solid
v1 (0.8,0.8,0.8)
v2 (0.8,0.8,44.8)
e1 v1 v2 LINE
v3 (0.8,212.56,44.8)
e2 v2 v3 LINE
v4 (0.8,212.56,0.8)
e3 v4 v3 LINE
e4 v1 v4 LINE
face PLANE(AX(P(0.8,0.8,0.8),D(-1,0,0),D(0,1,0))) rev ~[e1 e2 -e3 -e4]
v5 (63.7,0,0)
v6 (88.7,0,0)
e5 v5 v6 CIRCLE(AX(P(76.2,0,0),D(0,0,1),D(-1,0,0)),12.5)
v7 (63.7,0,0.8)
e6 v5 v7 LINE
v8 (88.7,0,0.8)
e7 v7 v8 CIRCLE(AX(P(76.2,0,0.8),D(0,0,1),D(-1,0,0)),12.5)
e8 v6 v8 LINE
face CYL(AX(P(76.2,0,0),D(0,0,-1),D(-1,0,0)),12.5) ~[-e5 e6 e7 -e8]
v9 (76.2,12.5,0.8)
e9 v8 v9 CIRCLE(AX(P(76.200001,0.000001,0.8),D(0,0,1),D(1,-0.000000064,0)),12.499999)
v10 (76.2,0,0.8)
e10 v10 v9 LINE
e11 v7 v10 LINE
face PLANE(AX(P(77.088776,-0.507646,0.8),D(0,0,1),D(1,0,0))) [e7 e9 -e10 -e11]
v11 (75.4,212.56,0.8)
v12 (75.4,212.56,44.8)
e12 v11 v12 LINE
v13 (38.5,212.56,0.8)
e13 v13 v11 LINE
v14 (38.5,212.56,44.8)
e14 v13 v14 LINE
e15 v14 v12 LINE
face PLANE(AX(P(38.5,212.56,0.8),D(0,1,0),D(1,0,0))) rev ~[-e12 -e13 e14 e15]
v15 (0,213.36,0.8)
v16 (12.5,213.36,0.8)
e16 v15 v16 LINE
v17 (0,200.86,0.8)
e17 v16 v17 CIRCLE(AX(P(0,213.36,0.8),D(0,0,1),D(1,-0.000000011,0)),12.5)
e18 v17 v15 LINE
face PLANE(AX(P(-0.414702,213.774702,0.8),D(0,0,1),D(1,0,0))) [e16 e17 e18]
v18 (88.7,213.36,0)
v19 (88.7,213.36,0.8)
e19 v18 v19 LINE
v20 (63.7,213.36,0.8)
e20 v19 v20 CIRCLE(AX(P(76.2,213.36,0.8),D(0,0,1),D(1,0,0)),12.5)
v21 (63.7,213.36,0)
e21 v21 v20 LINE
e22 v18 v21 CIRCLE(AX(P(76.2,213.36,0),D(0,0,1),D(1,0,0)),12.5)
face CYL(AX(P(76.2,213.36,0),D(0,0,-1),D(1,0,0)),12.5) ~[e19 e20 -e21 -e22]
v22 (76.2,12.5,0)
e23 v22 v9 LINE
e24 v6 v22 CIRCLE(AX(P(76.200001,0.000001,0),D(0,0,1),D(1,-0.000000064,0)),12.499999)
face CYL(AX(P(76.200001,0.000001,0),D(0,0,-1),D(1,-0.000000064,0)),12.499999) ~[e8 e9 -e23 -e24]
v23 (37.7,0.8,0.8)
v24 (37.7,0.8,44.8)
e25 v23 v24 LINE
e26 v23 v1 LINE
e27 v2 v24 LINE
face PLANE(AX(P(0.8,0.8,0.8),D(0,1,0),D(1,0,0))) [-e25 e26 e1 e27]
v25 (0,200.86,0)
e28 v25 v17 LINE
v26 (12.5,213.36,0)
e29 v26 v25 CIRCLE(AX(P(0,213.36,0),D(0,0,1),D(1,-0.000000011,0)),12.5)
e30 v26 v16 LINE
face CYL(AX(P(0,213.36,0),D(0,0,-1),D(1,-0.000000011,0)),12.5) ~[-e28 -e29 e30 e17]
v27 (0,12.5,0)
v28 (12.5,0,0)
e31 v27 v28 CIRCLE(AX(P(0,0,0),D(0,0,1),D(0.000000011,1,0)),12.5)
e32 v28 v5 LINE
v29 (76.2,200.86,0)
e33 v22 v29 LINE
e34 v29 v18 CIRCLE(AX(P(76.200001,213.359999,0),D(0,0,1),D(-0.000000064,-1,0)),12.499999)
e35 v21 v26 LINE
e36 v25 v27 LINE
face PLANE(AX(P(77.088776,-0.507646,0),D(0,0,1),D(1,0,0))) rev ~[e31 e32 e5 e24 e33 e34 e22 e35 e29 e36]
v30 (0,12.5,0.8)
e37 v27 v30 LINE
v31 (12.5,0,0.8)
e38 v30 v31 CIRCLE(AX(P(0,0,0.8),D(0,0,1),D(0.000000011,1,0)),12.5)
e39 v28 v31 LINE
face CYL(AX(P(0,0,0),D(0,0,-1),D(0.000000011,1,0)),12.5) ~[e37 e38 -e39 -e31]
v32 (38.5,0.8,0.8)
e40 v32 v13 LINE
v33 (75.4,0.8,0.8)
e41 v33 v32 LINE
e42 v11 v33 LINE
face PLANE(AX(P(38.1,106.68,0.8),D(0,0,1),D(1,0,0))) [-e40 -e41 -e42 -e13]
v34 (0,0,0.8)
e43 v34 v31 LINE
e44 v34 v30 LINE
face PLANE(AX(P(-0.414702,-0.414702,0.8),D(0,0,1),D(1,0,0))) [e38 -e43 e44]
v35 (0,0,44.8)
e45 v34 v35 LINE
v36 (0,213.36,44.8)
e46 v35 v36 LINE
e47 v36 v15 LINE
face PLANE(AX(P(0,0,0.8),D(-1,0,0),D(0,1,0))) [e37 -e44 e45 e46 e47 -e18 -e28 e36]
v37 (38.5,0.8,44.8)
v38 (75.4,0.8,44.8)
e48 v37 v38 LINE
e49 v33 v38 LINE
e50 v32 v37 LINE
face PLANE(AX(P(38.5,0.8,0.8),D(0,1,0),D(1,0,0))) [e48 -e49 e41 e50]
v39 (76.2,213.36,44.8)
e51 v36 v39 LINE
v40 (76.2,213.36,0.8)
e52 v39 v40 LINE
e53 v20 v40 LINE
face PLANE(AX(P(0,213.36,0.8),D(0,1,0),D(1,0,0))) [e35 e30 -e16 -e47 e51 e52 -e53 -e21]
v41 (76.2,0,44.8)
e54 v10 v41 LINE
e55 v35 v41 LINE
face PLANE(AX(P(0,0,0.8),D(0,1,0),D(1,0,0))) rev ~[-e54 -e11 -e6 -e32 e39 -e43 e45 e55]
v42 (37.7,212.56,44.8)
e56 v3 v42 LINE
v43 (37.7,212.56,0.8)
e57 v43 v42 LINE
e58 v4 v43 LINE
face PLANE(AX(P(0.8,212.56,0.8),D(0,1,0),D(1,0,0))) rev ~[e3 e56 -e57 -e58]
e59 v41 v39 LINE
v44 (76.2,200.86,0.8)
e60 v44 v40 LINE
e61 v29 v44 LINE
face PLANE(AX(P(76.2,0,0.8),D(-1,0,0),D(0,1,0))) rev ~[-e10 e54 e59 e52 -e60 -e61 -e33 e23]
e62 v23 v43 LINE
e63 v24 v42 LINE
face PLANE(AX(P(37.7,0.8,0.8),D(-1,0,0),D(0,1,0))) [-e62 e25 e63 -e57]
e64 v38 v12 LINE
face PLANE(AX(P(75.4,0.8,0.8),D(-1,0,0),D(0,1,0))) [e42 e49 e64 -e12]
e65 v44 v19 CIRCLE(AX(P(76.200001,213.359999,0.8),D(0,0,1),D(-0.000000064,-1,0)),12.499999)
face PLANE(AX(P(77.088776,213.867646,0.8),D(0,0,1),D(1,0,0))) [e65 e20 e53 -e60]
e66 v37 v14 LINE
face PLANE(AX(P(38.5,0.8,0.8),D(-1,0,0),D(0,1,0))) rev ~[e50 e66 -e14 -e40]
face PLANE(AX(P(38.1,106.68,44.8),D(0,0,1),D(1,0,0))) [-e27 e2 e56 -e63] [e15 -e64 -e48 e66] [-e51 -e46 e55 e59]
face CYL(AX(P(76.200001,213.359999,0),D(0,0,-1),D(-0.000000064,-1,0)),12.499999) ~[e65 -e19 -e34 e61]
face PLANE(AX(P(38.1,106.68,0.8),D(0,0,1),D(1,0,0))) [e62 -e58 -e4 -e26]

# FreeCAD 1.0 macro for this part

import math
import FreeCAD as App
import Part
import Sketcher
from FreeCAD import Vector

doc = App.newDocument("Part")
params = doc.addObject("Spreadsheet::Sheet", "Params")
for row, (alias, value) in enumerate([
    ("sketch1_radius", "12.499999 mm"),
    ("sketch1_width", "76.2 mm"),
    ("sketch1_width2", "63.7 mm"),
    ("sketch1_height", "200.86 mm"),
    ("pad1_length", "0.8 mm"),
    ("sketch2_width", "76.2 mm"),
    ("sketch2_width2", "36.9 mm"),
    ("sketch2_height", "213.36 mm"),
    ("sketch2_height2", "211.76 mm"),
    ("pad2_length", "44 mm"),
    ("sketch3_radius", "12.5 mm"),
    ("pad3_length", "0.8 mm"),
], start=1):
    params.set(f"A{row}", alias)
    params.set(f"B{row}", "=" + value)
    params.setAlias(f"B{row}", alias)

body = doc.addObject("PartDesign::Body", "Body")

# Sketch on XY plane
sketch1 = body.newObject("Sketcher::SketchObject", "Sketch")
sketch1.AttachmentSupport = (doc.getObject("XY_Plane"), [""])
sketch1.MapMode = "FlatFace"
sketch1.addGeometry([
    Part.ArcOfCircle(Part.Circle(Vector(76.199999, 0.000001, 0), Vector(0, 0, 1), 12.499999), math.radians(89.999996), math.radians(180.000004)),  # 0
    Part.LineSegment(Vector(76.2, 12.5, 0), Vector(76.2, 213.36, 0)),  # 1
    Part.LineSegment(Vector(76.2, 213.36, 0), Vector(0, 213.36, 0)),  # 2
    Part.LineSegment(Vector(0, 213.36, 0), Vector(0, 0, 0)),  # 3
    Part.LineSegment(Vector(0, 0, 0), Vector(63.7, 0, 0)),  # 4
], False)
sketch1.addConstraint([
    Sketcher.Constraint("Coincident", 0, 1, 1, 1),
    Sketcher.Constraint("Coincident", 1, 2, 2, 1),
    Sketcher.Constraint("Coincident", 2, 2, 3, 1),
    Sketcher.Constraint("Coincident", 3, 2, 4, 1),
    Sketcher.Constraint("Coincident", 4, 2, 0, 2),
    Sketcher.Constraint("Vertical", 1),
    Sketcher.Constraint("Horizontal", 2),
    Sketcher.Constraint("Vertical", 3),
    Sketcher.Constraint("Horizontal", 4),
    Sketcher.Constraint("Coincident", 3, 2, -1, 1),
    Sketcher.Constraint("PointOnObject", 0, 3, -1),
    Sketcher.Constraint("Radius", 0, 12.499999),
    Sketcher.Constraint("DistanceX", 2, 2, 2, 1, 76.2),
    Sketcher.Constraint("DistanceX", 4, 1, 4, 2, 63.7),
    Sketcher.Constraint("DistanceY", 1, 1, 1, 2, 200.86),
])
sketch1.setExpression("Constraints[11]", "Params.sketch1_radius")
sketch1.setExpression("Constraints[12]", "Params.sketch1_width")
sketch1.setExpression("Constraints[13]", "Params.sketch1_width2")
sketch1.setExpression("Constraints[14]", "Params.sketch1_height")
pad1 = body.newObject("PartDesign::Pad", "Pad")
pad1.Profile = sketch1
pad1.setExpression("Length", "Params.pad1_length")

# Sketch on XY plane
sketch2 = body.newObject("Sketcher::SketchObject", "Sketch001")
sketch2.AttachmentSupport = (doc.getObject("XY_Plane"), [""])
sketch2.MapMode = "FlatFace"
sketch2.AttachmentOffset = App.Placement(Vector(0, 0, 0.8), App.Rotation())
sketch2.addGeometry([
    Part.LineSegment(Vector(0, 213.36, 0), Vector(0, 0, 0)),  # 0
    Part.LineSegment(Vector(0, 0, 0), Vector(76.2, 0, 0)),  # 1
    Part.LineSegment(Vector(76.2, 0, 0), Vector(76.2, 213.36, 0)),  # 2
    Part.LineSegment(Vector(76.2, 213.36, 0), Vector(0, 213.36, 0)),  # 3
    Part.LineSegment(Vector(37.7, 0.8, 0), Vector(0.8, 0.8, 0)),  # 4
    Part.LineSegment(Vector(0.8, 0.8, 0), Vector(0.8, 212.56, 0)),  # 5
    Part.LineSegment(Vector(0.8, 212.56, 0), Vector(37.7, 212.56, 0)),  # 6
    Part.LineSegment(Vector(37.7, 212.56, 0), Vector(37.7, 0.8, 0)),  # 7
    Part.LineSegment(Vector(75.4, 0.8, 0), Vector(38.5, 0.8, 0)),  # 8
    Part.LineSegment(Vector(38.5, 0.8, 0), Vector(38.5, 212.56, 0)),  # 9
    Part.LineSegment(Vector(38.5, 212.56, 0), Vector(75.4, 212.56, 0)),  # 10
    Part.LineSegment(Vector(75.4, 212.56, 0), Vector(75.4, 0.8, 0)),  # 11
], False)
sketch2.addConstraint([
    Sketcher.Constraint("Coincident", 0, 2, 1, 1),
    Sketcher.Constraint("Coincident", 1, 2, 2, 1),
    Sketcher.Constraint("Coincident", 2, 2, 3, 1),
    Sketcher.Constraint("Coincident", 3, 2, 0, 1),
    Sketcher.Constraint("Coincident", 4, 2, 5, 1),
    Sketcher.Constraint("Coincident", 5, 2, 6, 1),
    Sketcher.Constraint("Coincident", 6, 2, 7, 1),
    Sketcher.Constraint("Coincident", 7, 2, 4, 1),
    Sketcher.Constraint("Coincident", 8, 2, 9, 1),
    Sketcher.Constraint("Coincident", 9, 2, 10, 1),
    Sketcher.Constraint("Coincident", 10, 2, 11, 1),
    Sketcher.Constraint("Coincident", 11, 2, 8, 1),
    Sketcher.Constraint("Vertical", 0),
    Sketcher.Constraint("Horizontal", 1),
    Sketcher.Constraint("Vertical", 2),
    Sketcher.Constraint("Horizontal", 3),
    Sketcher.Constraint("Horizontal", 4),
    Sketcher.Constraint("Vertical", 5),
    Sketcher.Constraint("Horizontal", 6),
    Sketcher.Constraint("Vertical", 7),
    Sketcher.Constraint("Horizontal", 8),
    Sketcher.Constraint("Vertical", 9),
    Sketcher.Constraint("Horizontal", 10),
    Sketcher.Constraint("Vertical", 11),
    Sketcher.Constraint("Coincident", 0, 2, -1, 1),
    Sketcher.Constraint("Horizontal", 7, 2, 8, 2),
    Sketcher.Constraint("Horizontal", 6, 2, 9, 2),
    Sketcher.Constraint("Equal", 6, 8),
    Sketcher.Constraint("DistanceX", 1, 1, 1, 2, 76.2),
    Sketcher.Constraint("DistanceX", 4, 2, 4, 1, 36.9),
    Sketcher.Constraint("DistanceY", 0, 2, 0, 1, 213.36),
    Sketcher.Constraint("DistanceY", 5, 1, 5, 2, 211.76),
    Sketcher.Constraint("DistanceX", -1, 1, 4, 2, 0.8),
    Sketcher.Constraint("DistanceY", -1, 1, 4, 2, 0.8),
    Sketcher.Constraint("DistanceX", -1, 1, 8, 2, 38.5),
])
sketch2.setExpression("Constraints[28]", "Params.sketch2_width")
sketch2.setExpression("Constraints[29]", "Params.sketch2_width2")
sketch2.setExpression("Constraints[30]", "Params.sketch2_height")
sketch2.setExpression("Constraints[31]", "Params.sketch2_height2")
pad2 = body.newObject("PartDesign::Pad", "Pad001")
pad2.Profile = sketch2
pad2.setExpression("Length", "Params.pad2_length")

# Sketch on XY plane
sketch3 = body.newObject("Sketcher::SketchObject", "Sketch002")
sketch3.AttachmentSupport = (doc.getObject("XY_Plane"), [""])
sketch3.MapMode = "FlatFace"
sketch3.addGeometry([
    Part.ArcOfCircle(Part.Circle(Vector(76.2, 0, 0), Vector(0, 0, 1), 12.5), math.radians(180), math.radians(360)),  # 0
    Part.ArcOfCircle(Part.Circle(Vector(76.200001, 0.000001, 0), Vector(0, 0, 1), 12.499999), math.radians(-0.000004), math.radians(90.000004)),  # 1
    Part.ArcOfCircle(Part.Circle(Vector(76.199999, 0.000001, 0), Vector(0, 0, 1), 12.499999), math.radians(89.999996), math.radians(180.000004)),  # 2
    Part.ArcOfCircle(Part.Circle(Vector(0, 0, 0), Vector(0, 0, 1), 12.5), math.radians(89.999999), math.radians(360.000001)),  # 3
    Part.ArcOfCircle(Part.Circle(Vector(0.000001, 0.000001, 0), Vector(0, 0, 1), 12.499999), math.radians(-0.000004), math.radians(90.000004)),  # 4
    Part.ArcOfCircle(Part.Circle(Vector(0, 213.36, 0), Vector(0, 0, 1), 12.5), math.radians(-0.000001), math.radians(270.000001)),  # 5
    Part.ArcOfCircle(Part.Circle(Vector(0.000001, 213.359999, 0), Vector(0, 0, 1), 12.499999), math.radians(-90.000004), math.radians(0.000004)),  # 6
    Part.ArcOfCircle(Part.Circle(Vector(76.200001, 213.359999, 0), Vector(0, 0, 1), 12.499999), math.radians(-90.000004), math.radians(0.000004)),  # 7
    Part.ArcOfCircle(Part.Circle(Vector(76.2, 213.36, 0), Vector(0, 0, 1), 12.5), math.radians(0), math.radians(180)),  # 8
    Part.ArcOfCircle(Part.Circle(Vector(76.199999, 213.359999, 0), Vector(0, 0, 1), 12.499999), math.radians(179.999996), math.radians(270.000004)),  # 9
], False)
sketch3.addConstraint([
    Sketcher.Constraint("Tangent", 0, 2, 1, 1),
    Sketcher.Constraint("Tangent", 1, 2, 2, 1),
    Sketcher.Constraint("Tangent", 2, 2, 0, 1),
    Sketcher.Constraint("Tangent", 3, 1, 4, 2),
    Sketcher.Constraint("Coincident", 4, 1, 3, 2),
    Sketcher.Constraint("Tangent", 5, 1, 6, 2),
    Sketcher.Constraint("Coincident", 6, 1, 5, 2),
    Sketcher.Constraint("Tangent", 7, 2, 8, 1),
    Sketcher.Constraint("Tangent", 8, 2, 9, 1),
    Sketcher.Constraint("Tangent", 9, 2, 7, 1),
    Sketcher.Constraint("Coincident", 3, 3, -1, 1),
    Sketcher.Constraint("Equal", 2, 3),
    Sketcher.Constraint("Equal", 4, 5),
    Sketcher.Constraint("Equal", 6, 7),
    Sketcher.Constraint("PointOnObject", 0, 3, -1),
    Sketcher.Constraint("PointOnObject", 5, 3, -2),
    Sketcher.Constraint("PointOnObject", 0, 2, -1),
    Sketcher.Constraint("PointOnObject", 2, 2, -1),
    Sketcher.Constraint("PointOnObject", 3, 1, -2),
    Sketcher.Constraint("PointOnObject", 4, 1, -1),
    Sketcher.Constraint("PointOnObject", 6, 1, -2),
    Sketcher.Constraint("Horizontal", 6, 3, 7, 3),
    Sketcher.Constraint("Horizontal", 9, 3, 5, 1),
    Sketcher.Constraint("Horizontal", 5, 1, 7, 2),
    Sketcher.Constraint("Horizontal", 7, 2, 8, 2),
    Sketcher.Constraint("Vertical", 2, 3, 7, 3),
    Sketcher.Constraint("Vertical", 9, 3, 1, 2),
    Sketcher.Constraint("Vertical", 1, 2, 9, 2),
    Sketcher.Constraint("Radius", 0, 12.5),
    Sketcher.Constraint("DistanceX", -1, 1, 0, 3, 76.2),
    Sketcher.Constraint("DistanceY", -1, 1, 5, 3, 213.36),
])
sketch3.setExpression("Constraints[28]", "Params.sketch3_radius")
pad3 = body.newObject("PartDesign::Pad", "Pad002")
pad3.Profile = sketch3
pad3.setExpression("Length", "Params.pad3_length")

doc.recompute()
